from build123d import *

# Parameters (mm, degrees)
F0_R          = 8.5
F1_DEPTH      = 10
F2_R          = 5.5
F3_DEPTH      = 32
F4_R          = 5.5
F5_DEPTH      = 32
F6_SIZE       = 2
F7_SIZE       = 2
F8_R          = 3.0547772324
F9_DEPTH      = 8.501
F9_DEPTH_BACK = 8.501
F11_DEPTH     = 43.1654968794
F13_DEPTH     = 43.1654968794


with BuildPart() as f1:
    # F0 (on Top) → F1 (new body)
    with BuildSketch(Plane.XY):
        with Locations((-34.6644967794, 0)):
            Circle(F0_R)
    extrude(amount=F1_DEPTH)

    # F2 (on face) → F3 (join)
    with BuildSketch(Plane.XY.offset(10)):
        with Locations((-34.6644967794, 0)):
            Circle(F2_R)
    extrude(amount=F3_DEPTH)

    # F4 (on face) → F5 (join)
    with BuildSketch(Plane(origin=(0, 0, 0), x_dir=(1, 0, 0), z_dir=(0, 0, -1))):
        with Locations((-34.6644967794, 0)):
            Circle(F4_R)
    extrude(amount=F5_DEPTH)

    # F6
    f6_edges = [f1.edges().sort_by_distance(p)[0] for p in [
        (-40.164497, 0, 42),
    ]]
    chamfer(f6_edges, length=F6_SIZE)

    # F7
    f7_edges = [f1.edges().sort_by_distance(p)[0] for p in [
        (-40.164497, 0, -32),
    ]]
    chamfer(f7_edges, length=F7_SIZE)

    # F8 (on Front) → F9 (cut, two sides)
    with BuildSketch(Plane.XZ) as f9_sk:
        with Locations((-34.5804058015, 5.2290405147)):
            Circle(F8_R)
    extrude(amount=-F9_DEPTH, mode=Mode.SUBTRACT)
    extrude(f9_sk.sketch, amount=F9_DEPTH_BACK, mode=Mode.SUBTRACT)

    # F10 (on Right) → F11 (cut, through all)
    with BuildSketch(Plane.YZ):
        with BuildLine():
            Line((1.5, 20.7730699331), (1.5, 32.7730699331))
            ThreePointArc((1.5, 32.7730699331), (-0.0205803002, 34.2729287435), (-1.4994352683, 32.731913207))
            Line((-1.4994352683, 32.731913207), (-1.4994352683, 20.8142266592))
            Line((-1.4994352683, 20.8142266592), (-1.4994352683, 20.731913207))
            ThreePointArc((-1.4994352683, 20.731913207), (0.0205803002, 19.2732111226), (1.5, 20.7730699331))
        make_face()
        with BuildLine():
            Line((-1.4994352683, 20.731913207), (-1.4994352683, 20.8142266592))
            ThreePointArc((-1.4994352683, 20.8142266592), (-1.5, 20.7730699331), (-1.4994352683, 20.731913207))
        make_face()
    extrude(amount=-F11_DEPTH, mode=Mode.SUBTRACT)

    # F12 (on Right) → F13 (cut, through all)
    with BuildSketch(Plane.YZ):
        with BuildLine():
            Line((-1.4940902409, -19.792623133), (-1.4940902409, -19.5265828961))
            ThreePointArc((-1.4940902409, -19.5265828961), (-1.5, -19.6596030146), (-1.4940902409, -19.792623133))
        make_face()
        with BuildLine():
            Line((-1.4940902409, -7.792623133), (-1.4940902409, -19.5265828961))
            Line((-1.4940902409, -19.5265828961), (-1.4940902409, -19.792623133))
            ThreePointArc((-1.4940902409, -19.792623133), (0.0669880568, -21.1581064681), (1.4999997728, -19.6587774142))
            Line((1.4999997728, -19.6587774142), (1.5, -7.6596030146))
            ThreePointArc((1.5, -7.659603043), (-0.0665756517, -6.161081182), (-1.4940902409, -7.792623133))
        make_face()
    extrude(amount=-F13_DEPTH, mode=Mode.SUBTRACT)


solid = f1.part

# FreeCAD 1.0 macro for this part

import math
import FreeCAD as App
import Part
import Sketcher

V = App.Vector
Q = App.Units.Quantity


def edges_at(feature, points):
    """Names of the edges that pass closest to the given points."""
    edges = feature.Shape.Edges
    near = lambda p: min(range(len(edges)), key=lambda i: edges[i].distToShape(Part.Vertex(*p))[0])
    return sorted({f"Edge{near(p) + 1}" for p in points})

doc = App.newDocument("Part")
body = doc.addObject("PartDesign::Body", "Body")

# Sketch on XY plane
sketch1 = doc.addObject("Sketcher::SketchObject", "Sketch")
body.addObject(sketch1)
sketch1.AttachmentSupport = (doc.XY_Plane, [""])
sketch1.MapMode = "FlatFace"
sketch1.addGeometry(Part.Circle(V(-34.664497, 0, 0), V(0, 0, 1), 8.5), False)
sketch1.addConstraint(Sketcher.Constraint("PointOnObject", 0, 3, -1))
sketch1.addConstraint(Sketcher.Constraint("Diameter", 0, Q("17 mm")))
sketch1.addConstraint(Sketcher.Constraint("DistanceX", 0, 3, -1, 1, Q("34.664497 mm")))
pad1 = doc.addObject("PartDesign::Pad", "Pad")
body.addObject(pad1)
pad1.Profile = sketch1
pad1.Length = 10

# Sketch on XY plane
sketch2 = doc.addObject("Sketcher::SketchObject", "Sketch001")
body.addObject(sketch2)
sketch2.AttachmentSupport = (doc.XY_Plane, [""])
sketch2.MapMode = "FlatFace"
sketch2.AttachmentOffset = App.Placement(V(0, 0, 10), App.Rotation())
sketch2.addGeometry(Part.Circle(V(-34.664497, 0, 0), V(0, 0, 1), 5.5), False)
sketch2.addConstraint(Sketcher.Constraint("PointOnObject", 0, 3, -1))
sketch2.addConstraint(Sketcher.Constraint("Diameter", 0, Q("11 mm")))
sketch2.addConstraint(Sketcher.Constraint("DistanceX", 0, 3, -1, 1, Q("34.664497 mm")))
pad2 = doc.addObject("PartDesign::Pad", "Pad001")
body.addObject(pad2)
pad2.Profile = sketch2
pad2.Length = 32

# Sketch on XY plane
sketch3 = doc.addObject("Sketcher::SketchObject", "Sketch002")
body.addObject(sketch3)
sketch3.AttachmentSupport = (doc.XY_Plane, [""])
sketch3.MapMode = "FlatFace"
sketch3.addGeometry(Part.Circle(V(-34.664497, 0, 0), V(0, 0, 1), 5.5), False)
sketch3.addConstraint(Sketcher.Constraint("PointOnObject", 0, 3, -1))
sketch3.addConstraint(Sketcher.Constraint("Diameter", 0, Q("11 mm")))
sketch3.addConstraint(Sketcher.Constraint("DistanceX", 0, 3, -1, 1, Q("34.664497 mm")))
pad3 = doc.addObject("PartDesign::Pad", "Pad002")
body.addObject(pad3)
pad3.Profile = sketch3
pad3.Length = 32
pad3.Reversed = True
doc.recompute()

chamfer = doc.addObject("PartDesign::Chamfer", "Chamfer")
body.addObject(chamfer)
chamfer.Base = (pad3, edges_at(pad3, [(-40.164, 0, 42)]))
chamfer.Size = 2
doc.recompute()

chamfer2 = doc.addObject("PartDesign::Chamfer", "Chamfer001")
body.addObject(chamfer2)
chamfer2.Base = (chamfer, edges_at(chamfer, [(-40.164, 0, -32)]))
chamfer2.Size = 2

# Sketch on XZ plane
sketch4 = doc.addObject("Sketcher::SketchObject", "Sketch003")
body.addObject(sketch4)
sketch4.AttachmentSupport = (doc.XZ_Plane, [""])
sketch4.MapMode = "FlatFace"
sketch4.addGeometry(Part.Circle(V(-34.580406, 5.229041, 0), V(0, 0, 1), 3.054777), False)
sketch4.addConstraint(Sketcher.Constraint("Diameter", 0, Q("6.109554 mm")))
sketch4.addConstraint(Sketcher.Constraint("DistanceY", -1, 1, 0, 3, Q("5.229041 mm")))
sketch4.addConstraint(Sketcher.Constraint("DistanceX", 0, 3, -1, 1, Q("34.580406 mm")))
pocket1 = doc.addObject("PartDesign::Pocket", "Pocket")
body.addObject(pocket1)
pocket1.Profile = sketch4
pocket1.Type = "ThroughAll"
pocket1.Midplane = True

# Sketch on YZ plane
sketch5 = doc.addObject("Sketcher::SketchObject", "Sketch004")
body.addObject(sketch5)
sketch5.AttachmentSupport = (doc.YZ_Plane, [""])
sketch5.MapMode = "FlatFace"
sketch5.addGeometry(Part.LineSegment(V(1.5, 20.77307, 0), V(1.5, 32.77307, 0)), False)
sketch5.addGeometry(Part.ArcOfCircle(Part.Circle(V(0, 32.77307, 0), V(0, 0, 1), 1.5), math.radians(0), math.radians(181.572268)), False)
sketch5.addGeometry(Part.LineSegment(V(-1.499435, 32.731913, 0), V(-1.499435, 20.814227, 0)), False)
sketch5.addGeometry(Part.ArcOfCircle(Part.Circle(V(0, 20.77307, 0), V(0, 0, 1), 1.5), math.radians(178.427731), math.radians(181.572269)), False)
sketch5.addGeometry(Part.ArcOfCircle(Part.Circle(V(0, 20.77307, 0), V(0, 0, 1), 1.5), math.radians(-178.427732), math.radians(0)), False)
sketch5.addConstraint(Sketcher.Constraint("Tangent", 0, 2, 1, 1))
sketch5.addConstraint(Sketcher.Constraint("Coincident", 1, 2, 2, 1))
sketch5.addConstraint(Sketcher.Constraint("Coincident", 2, 2, 3, 1))
sketch5.addConstraint(Sketcher.Constraint("Tangent", 3, 2, 4, 1))
sketch5.addConstraint(Sketcher.Constraint("Tangent", 4, 2, 0, 1))
sketch5.addConstraint(Sketcher.Constraint("Vertical", 0))
sketch5.addConstraint(Sketcher.Constraint("Vertical", 2))
sketch5.addConstraint(Sketcher.Constraint("Equal", 1, 3))
sketch5.addConstraint(Sketcher.Constraint("Equal", 3, 4))
sketch5.addConstraint(Sketcher.Constraint("PointOnObject", 1, 3, -2))
sketch5.addConstraint(Sketcher.Constraint("Vertical", 2, 2, 3, 2))
sketch5.addConstraint(Sketcher.Constraint("Radius", 1, Q("1.5 mm")))
sketch5.addConstraint(Sketcher.Constraint("DistanceY", 0, 1, 0, 2, Q("12 mm")))
sketch5.addConstraint(Sketcher.Constraint("DistanceY", 2, 2, 2, 1, Q("11.917687 mm")))
sketch5.addConstraint(Sketcher.Constraint("DistanceY", -1, 1, 1, 3, Q("32.77307 mm")))
pocket2 = doc.addObject("PartDesign::Pocket", "Pocket001")
body.addObject(pocket2)
pocket2.Profile = sketch5
pocket2.Type = "ThroughAll"

# Sketch on YZ plane
sketch6 = doc.addObject("Sketcher::SketchObject", "Sketch005")
body.addObject(sketch6)
sketch6.AttachmentSupport = (doc.YZ_Plane, [""])
sketch6.MapMode = "FlatFace"
sketch6.addGeometry(Part.ArcOfCircle(Part.Circle(V(0, -19.659603, 0), V(0, 0, 1), 1.5), math.radians(174.912322), math.radians(185.087678)), False)
sketch6.addGeometry(Part.ArcOfCircle(Part.Circle(V(0, -19.659603, 0), V(0, 0, 1), 1.5), math.radians(-174.912322), math.radians(0.031536)), False)
sketch6.addGeometry(Part.LineSegment(V(1.5, -19.658777, 0), V(1.5, -7.659603, 0)), False)
sketch6.addGeometry(Part.ArcOfCircle(Part.Circle(V(0, -7.659603, 0), V(0, 0, 1), 1.5), math.radians(-0.000001), math.radians(185.087678)), False)
sketch6.addGeometry(Part.LineSegment(V(-1.49409, -7.792623, 0), V(-1.49409, -19.526583, 0)), False)
sketch6.addConstraint(Sketcher.Constraint("Coincident", 0, 2, 1, 1))
sketch6.addConstraint(Sketcher.Constraint("Coincident", 1, 2, 2, 1))
sketch6.addConstraint(Sketcher.Constraint("Coincident", 2, 2, 3, 1))
sketch6.addConstraint(Sketcher.Constraint("Coincident", 3, 2, 4, 1))
sketch6.addConstraint(Sketcher.Constraint("Coincident", 4, 2, 0, 1))
sketch6.addConstraint(Sketcher.Constraint("Vertical", 2))
sketch6.addConstraint(Sketcher.Constraint("Vertical", 4))
sketch6.addConstraint(Sketcher.Constraint("Coincident", 1, 3, 0, 3))
sketch6.addConstraint(Sketcher.Constraint("PointOnObject", 0, 3, -2))
sketch6.addConstraint(Sketcher.Constraint("PointOnObject", 3, 3, -2))
sketch6.addConstraint(Sketcher.Constraint("Radius", 0, Q("1.5 mm")))
sketch6.addConstraint(Sketcher.Constraint("DistanceY", 0, 3, 3, 3, Q("12 mm")))
sketch6.addConstraint(Sketcher.Constraint("DistanceY", 1, 3, 2, 2, Q("12 mm")))
sketch6.addConstraint(Sketcher.Constraint("DistanceY", 0, 2, 3, 2, Q("12 mm")))
sketch6.addConstraint(Sketcher.Constraint("DistanceY", 4, 2, 4, 1, Q("11.73396 mm")))
sketch6.addConstraint(Sketcher.Constraint("DistanceY", 2, 1, 2, 2, Q("11.999174 mm")))
sketch6.addConstraint(Sketcher.Constraint("DistanceY", 0, 3, -1, 1, Q("19.659603 mm")))
pocket3 = doc.addObject("PartDesign::Pocket", "Pocket002")
body.addObject(pocket3)
pocket3.Profile = sketch6
pocket3.Type = "ThroughAll"

doc.recompute()
